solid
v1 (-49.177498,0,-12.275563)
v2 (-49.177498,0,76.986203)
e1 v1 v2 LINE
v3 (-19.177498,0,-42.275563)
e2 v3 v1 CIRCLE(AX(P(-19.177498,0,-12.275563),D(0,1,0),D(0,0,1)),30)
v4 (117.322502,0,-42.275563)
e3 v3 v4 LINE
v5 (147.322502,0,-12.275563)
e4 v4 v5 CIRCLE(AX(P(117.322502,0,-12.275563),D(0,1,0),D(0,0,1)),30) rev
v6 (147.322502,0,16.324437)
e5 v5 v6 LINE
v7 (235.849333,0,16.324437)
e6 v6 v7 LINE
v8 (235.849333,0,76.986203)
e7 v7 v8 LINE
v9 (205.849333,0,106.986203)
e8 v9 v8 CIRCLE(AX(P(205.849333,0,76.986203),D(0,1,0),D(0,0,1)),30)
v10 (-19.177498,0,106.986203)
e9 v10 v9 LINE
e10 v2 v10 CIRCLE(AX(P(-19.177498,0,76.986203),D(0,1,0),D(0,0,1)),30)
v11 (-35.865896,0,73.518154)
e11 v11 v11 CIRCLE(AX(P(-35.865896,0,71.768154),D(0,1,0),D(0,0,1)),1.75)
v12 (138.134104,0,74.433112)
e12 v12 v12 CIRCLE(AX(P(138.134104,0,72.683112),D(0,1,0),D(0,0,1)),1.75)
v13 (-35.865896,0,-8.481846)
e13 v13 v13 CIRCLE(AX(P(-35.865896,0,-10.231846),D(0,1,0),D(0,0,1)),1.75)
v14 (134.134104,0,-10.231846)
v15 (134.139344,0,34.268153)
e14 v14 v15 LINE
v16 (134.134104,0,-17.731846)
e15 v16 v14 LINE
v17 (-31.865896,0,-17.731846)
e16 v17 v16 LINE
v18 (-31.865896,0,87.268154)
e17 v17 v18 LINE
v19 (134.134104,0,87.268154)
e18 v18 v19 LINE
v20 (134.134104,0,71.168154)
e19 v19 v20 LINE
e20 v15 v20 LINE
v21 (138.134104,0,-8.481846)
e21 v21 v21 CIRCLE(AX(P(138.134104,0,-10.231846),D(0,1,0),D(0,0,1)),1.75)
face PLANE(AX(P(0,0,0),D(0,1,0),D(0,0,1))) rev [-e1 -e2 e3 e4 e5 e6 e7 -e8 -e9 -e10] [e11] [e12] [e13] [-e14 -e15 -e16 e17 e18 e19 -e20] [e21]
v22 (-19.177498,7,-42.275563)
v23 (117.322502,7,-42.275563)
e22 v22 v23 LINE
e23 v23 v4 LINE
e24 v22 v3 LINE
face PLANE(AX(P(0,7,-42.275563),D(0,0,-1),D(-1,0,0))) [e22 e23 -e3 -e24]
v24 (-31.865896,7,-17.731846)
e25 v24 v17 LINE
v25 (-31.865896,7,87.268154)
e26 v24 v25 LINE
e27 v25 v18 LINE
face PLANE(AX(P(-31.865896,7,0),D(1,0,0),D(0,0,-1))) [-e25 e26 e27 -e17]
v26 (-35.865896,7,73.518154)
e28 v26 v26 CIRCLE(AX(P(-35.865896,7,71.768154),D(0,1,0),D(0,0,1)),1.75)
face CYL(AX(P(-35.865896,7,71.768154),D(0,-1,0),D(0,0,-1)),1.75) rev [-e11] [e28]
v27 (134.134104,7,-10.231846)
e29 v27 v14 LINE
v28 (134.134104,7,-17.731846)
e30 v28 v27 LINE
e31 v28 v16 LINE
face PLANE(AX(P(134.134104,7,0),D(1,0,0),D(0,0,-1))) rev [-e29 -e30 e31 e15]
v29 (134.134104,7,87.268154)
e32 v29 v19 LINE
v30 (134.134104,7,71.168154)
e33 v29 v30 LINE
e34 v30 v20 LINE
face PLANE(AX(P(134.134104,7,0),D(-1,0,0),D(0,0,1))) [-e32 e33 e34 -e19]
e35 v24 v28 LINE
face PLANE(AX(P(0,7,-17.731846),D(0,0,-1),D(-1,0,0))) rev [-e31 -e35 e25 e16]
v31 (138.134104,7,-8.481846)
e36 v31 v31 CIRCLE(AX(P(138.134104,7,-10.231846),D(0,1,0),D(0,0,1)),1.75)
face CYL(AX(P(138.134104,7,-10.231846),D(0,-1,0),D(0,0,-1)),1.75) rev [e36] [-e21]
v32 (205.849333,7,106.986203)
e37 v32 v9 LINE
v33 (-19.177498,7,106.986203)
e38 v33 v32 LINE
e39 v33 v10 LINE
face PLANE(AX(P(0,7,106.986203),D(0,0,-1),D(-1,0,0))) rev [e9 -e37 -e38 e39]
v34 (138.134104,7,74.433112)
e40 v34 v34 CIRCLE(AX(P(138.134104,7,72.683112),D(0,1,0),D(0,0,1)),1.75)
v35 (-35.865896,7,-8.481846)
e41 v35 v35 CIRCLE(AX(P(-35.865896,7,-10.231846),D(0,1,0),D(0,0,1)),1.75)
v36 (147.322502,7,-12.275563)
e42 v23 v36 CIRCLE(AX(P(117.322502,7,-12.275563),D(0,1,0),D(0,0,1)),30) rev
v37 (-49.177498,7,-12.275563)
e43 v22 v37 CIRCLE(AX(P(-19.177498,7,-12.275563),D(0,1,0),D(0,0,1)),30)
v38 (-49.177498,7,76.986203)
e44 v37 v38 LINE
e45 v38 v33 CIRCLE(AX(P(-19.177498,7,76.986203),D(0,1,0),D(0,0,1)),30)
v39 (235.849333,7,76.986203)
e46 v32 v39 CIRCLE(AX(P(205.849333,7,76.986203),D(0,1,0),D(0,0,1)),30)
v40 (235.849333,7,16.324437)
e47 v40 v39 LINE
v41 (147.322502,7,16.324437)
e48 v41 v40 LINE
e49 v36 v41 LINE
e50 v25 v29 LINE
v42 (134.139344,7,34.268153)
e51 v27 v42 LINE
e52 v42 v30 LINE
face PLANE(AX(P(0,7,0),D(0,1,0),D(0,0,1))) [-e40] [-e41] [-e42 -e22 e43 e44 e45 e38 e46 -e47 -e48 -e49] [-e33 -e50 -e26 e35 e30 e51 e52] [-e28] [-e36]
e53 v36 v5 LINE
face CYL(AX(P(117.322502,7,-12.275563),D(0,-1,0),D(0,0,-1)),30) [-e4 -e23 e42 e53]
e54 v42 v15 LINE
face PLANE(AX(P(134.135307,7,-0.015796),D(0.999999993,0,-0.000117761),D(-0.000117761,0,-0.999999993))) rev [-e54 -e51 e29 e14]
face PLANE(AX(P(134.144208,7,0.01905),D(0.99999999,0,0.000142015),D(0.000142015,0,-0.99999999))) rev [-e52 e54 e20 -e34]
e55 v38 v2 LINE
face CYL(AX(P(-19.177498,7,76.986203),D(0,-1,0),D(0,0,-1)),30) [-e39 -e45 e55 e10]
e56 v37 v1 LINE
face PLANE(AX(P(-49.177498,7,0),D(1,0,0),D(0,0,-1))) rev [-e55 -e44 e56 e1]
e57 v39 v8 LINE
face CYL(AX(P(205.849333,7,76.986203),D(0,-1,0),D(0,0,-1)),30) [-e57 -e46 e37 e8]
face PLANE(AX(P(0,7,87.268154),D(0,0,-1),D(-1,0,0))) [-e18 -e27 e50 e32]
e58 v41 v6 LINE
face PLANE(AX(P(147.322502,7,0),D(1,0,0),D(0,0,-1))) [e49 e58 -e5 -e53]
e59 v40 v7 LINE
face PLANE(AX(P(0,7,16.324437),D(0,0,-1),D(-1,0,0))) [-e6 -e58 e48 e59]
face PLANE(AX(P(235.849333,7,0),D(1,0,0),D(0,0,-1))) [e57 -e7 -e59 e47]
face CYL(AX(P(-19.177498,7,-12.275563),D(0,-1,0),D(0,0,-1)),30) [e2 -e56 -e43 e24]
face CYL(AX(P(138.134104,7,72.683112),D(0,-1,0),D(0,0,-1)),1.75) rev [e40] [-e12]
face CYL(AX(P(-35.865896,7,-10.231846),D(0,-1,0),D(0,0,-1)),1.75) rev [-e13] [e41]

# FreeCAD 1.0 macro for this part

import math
import FreeCAD as App
import Part
import Sketcher

doc = App.newDocument("Part")
body = doc.addObject("PartDesign::Body", "Body")

# Sketch on XZ plane
sketch1 = body.newObject("Sketcher::SketchObject", "Sketch")
sketch1.AttachmentSupport = (doc.getObject("XZ_Plane"), [""])
sketch1.MapMode = "FlatFace"
sketch1.addGeometry([
    Part.LineSegment(App.Vector(117.3225, -42.2756, 0), App.Vector(-19.1775, -42.2756, 0)),  # 0
    Part.ArcOfCircle(Part.Circle(App.Vector(-19.1775, -12.2756, 0), App.Vector(0, 0, 1), 30), math.radians(180), math.radians(270)),  # 1
    Part.LineSegment(App.Vector(-49.1775, -12.2756, 0), App.Vector(-49.1775, 76.9862, 0)),  # 2
    Part.ArcOfCircle(Part.Circle(App.Vector(-19.1775, 76.9862, 0), App.Vector(0, 0, 1), 30), math.radians(90), math.radians(180)),  # 3
    Part.LineSegment(App.Vector(-19.1775, 106.9862, 0), App.Vector(205.8493, 106.9862, 0)),  # 4
    Part.ArcOfCircle(Part.Circle(App.Vector(205.8493, 76.9862, 0), App.Vector(0, 0, 1), 30), math.radians(0), math.radians(90)),  # 5
    Part.LineSegment(App.Vector(235.8493, 76.9862, 0), App.Vector(235.8493, 16.3244, 0)),  # 6
    Part.LineSegment(App.Vector(235.8493, 16.3244, 0), App.Vector(147.3225, 16.3244, 0)),  # 7
    Part.LineSegment(App.Vector(147.3225, 16.3244, 0), App.Vector(147.3225, -12.2756, 0)),  # 8
    Part.ArcOfCircle(Part.Circle(App.Vector(117.3225, -12.2756, 0), App.Vector(0, 0, 1), 30), math.radians(-90), math.radians(0)),  # 9
    Part.Circle(App.Vector(-35.8659, 71.7682, 0), App.Vector(0, 0, 1), 1.75),  # 10
    Part.Circle(App.Vector(138.1341, 72.6831, 0), App.Vector(0, 0, 1), 1.75),  # 11
    Part.Circle(App.Vector(-35.8659, -10.2318, 0), App.Vector(0, 0, 1), 1.75),  # 12
    Part.LineSegment(App.Vector(134.1341, 87.2682, 0), App.Vector(-31.8659, 87.2682, 0)),  # 13
    Part.LineSegment(App.Vector(-31.8659, 87.2682, 0), App.Vector(-31.8659, -17.7318, 0)),  # 14
    Part.LineSegment(App.Vector(-31.8659, -17.7318, 0), App.Vector(134.1341, -17.7318, 0)),  # 15
    Part.LineSegment(App.Vector(134.1341, -17.7318, 0), App.Vector(134.1341, -10.2318, 0)),  # 16
    Part.LineSegment(App.Vector(134.1341, -10.2318, 0), App.Vector(134.1393, 34.2682, 0)),  # 17
    Part.LineSegment(App.Vector(134.1393, 34.2682, 0), App.Vector(134.1341, 71.167, 0)),  # 18
    Part.LineSegment(App.Vector(134.1341, 71.167, 0), App.Vector(134.1341, 71.1682, 0)),  # 19
    Part.LineSegment(App.Vector(134.1341, 71.1682, 0), App.Vector(134.1341, 87.2682, 0)),  # 20
    Part.Circle(App.Vector(138.1341, -10.2318, 0), App.Vector(0, 0, 1), 1.75),  # 21
], False)
sketch1.addConstraint([
    Sketcher.Constraint("Tangent", 0, 2, 1, 2),
    Sketcher.Constraint("Tangent", 1, 1, 2, 1),
    Sketcher.Constraint("Tangent", 2, 2, 3, 2),
    Sketcher.Constraint("Tangent", 3, 1, 4, 1),
    Sketcher.Constraint("Tangent", 4, 2, 5, 2),
    Sketcher.Constraint("Tangent", 5, 1, 6, 1),
    Sketcher.Constraint("Coincident", 6, 2, 7, 1),
    Sketcher.Constraint("Coincident", 7, 2, 8, 1),
    Sketcher.Constraint("Tangent", 8, 2, 9, 2),
    Sketcher.Constraint("Tangent", 9, 1, 0, 1),
    Sketcher.Constraint("Coincident", 13, 2, 14, 1),
    Sketcher.Constraint("Coincident", 14, 2, 15, 1),
    Sketcher.Constraint("Coincident", 15, 2, 16, 1),
    Sketcher.Constraint("Coincident", 16, 2, 17, 1),
    Sketcher.Constraint("Coincident", 17, 2, 18, 1),
    Sketcher.Constraint("Coincident", 18, 2, 19, 1),
    Sketcher.Constraint("Coincident", 19, 2, 20, 1),
    Sketcher.Constraint("Coincident", 20, 2, 13, 1),
    Sketcher.Constraint("Horizontal", 0),
    Sketcher.Constraint("Vertical", 2),
    Sketcher.Constraint("Horizontal", 4),
    Sketcher.Constraint("Vertical", 6),
    Sketcher.Constraint("Horizontal", 7),
    Sketcher.Constraint("Vertical", 8),
    Sketcher.Constraint("Horizontal", 13),
    Sketcher.Constraint("Vertical", 14),
    Sketcher.Constraint("Horizontal", 15),
    Sketcher.Constraint("Vertical", 16),
    Sketcher.Constraint("Vertical", 19),
    Sketcher.Constraint("Vertical", 20),
    Sketcher.Constraint("Equal", 1, 3),
    Sketcher.Constraint("Equal", 3, 5),
    Sketcher.Constraint("Equal", 5, 9),
    Sketcher.Constraint("Equal", 10, 11),
    Sketcher.Constraint("Equal", 11, 12),
    Sketcher.Constraint("Equal", 12, 21),
    Sketcher.Constraint("Horizontal", 12, 3, 21, 3),
    Sketcher.Constraint("Horizontal", 21, 3, 16, 2),
    Sketcher.Constraint("Vertical", 10, 3, 12, 3),
    Sketcher.Constraint("Vertical", 11, 3, 21, 3),
    Sketcher.Constraint("Vertical", 16, 2, 18, 2),
    Sketcher.Constraint("Radius", 1, 30.0),
    Sketcher.Constraint("Diameter", 10, 3.5),
    Sketcher.Constraint("DistanceX", 13, 2, 13, 1, 166.0),
    Sketcher.Constraint("DistanceY", 14, 2, 14, 1, 105.0),
    Sketcher.Constraint("DistanceX", 0, 2, 0, 1, 136.5),
    Sketcher.Constraint("DistanceY", 8, 2, 8, 1, 28.6),
    Sketcher.Constraint("DistanceY", 16, 1, 16, 2, 7.5),
    Sketcher.Constraint("DistanceY", 20, 1, 20, 2, 16.1),
    Sketcher.Constraint("DistanceX", 10, 3, 11, 3, 174.0),
    Sketcher.Constraint("DistanceY", 12, 3, 10, 3, 82.0),
    Sketcher.Constraint("DistanceX", 10, 3, 13, 2, 4.0),
    Sketcher.Constraint("DistanceY", 17, 2, 20, 2, 53.000001),
    Sketcher.Constraint("DistanceX", 4, 1, 4, 2, 225.026832),
    Sketcher.Constraint("DistanceX", 1, 3, -1, 1, 19.177498),
    Sketcher.Constraint("DistanceY", 2, 1, 2, 2, 89.261766),
    Sketcher.Constraint("DistanceY", 19, 1, 19, 2, 0.001108),
    Sketcher.Constraint("DistanceY", -1, 1, 11, 3, 72.683112),
    Sketcher.Constraint("DistanceY", 10, 3, 3, 3, 5.218048),
    Sketcher.Constraint("DistanceX", 10, 3, 5, 3, 241.715229),
    Sketcher.Constraint("DistanceY", 11, 3, 5, 3, 4.303091),
    Sketcher.Constraint("DistanceX", 17, 2, 11, 3, 3.99476),
])
pad1 = body.newObject("PartDesign::Pad", "Pad")
pad1.Profile = sketch1
pad1.Length = 7
pad1.Reversed = True

doc.recompute()
